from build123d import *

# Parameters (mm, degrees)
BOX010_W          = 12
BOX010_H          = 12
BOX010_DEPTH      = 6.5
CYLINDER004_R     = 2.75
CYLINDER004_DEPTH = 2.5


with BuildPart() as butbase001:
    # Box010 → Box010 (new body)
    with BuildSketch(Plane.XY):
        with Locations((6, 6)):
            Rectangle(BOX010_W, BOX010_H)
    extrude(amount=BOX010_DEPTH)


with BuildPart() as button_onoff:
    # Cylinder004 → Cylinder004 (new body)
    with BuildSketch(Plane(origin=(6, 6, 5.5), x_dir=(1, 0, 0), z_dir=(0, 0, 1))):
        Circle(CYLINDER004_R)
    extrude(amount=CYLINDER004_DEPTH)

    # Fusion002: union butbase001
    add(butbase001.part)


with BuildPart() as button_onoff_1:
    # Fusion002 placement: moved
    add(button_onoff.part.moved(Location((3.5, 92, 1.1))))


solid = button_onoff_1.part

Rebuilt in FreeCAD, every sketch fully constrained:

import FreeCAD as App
import Part
import Sketcher
from FreeCAD import Vector
Q = App.Units.Quantity

doc = App.newDocument("Part")
body = doc.addObject("PartDesign::Body", "Body")

# Sketch on XY plane
sketch1 = body.newObject("Sketcher::SketchObject", "Sketch")
sketch1.AttachmentSupport = (doc.getObject("XY_Plane"), [""])
sketch1.MapMode = "FlatFace"
sketch1.addGeometry([
    Part.LineSegment(Vector(0, 12, 0), Vector(0, 0, 0)),
    Part.LineSegment(Vector(0, 0, 0), Vector(12, 0, 0)),
    Part.LineSegment(Vector(12, 0, 0), Vector(12, 12, 0)),
    Part.LineSegment(Vector(12, 12, 0), Vector(0, 12, 0)),
], False)
sketch1.addConstraint([
    Sketcher.Constraint("Coincident", 0, 2, 1, 1),
    Sketcher.Constraint("Coincident", 1, 2, 2, 1),
    Sketcher.Constraint("Coincident", 2, 2, 3, 1),
    Sketcher.Constraint("Coincident", 3, 2, 0, 1),
    Sketcher.Constraint("Vertical", 0),
    Sketcher.Constraint("Horizontal", 1),
    Sketcher.Constraint("Vertical", 2),
    Sketcher.Constraint("Horizontal", 3),
    Sketcher.Constraint("Coincident", 0, 2, -1, 1),
    Sketcher.Constraint("Equal", 3, 0),
    Sketcher.Constraint("DistanceX", 1, 1, 1, 2, Q("12 mm")),
])
pad1 = body.newObject("PartDesign::Pad", "Pad")
pad1.Profile = sketch1
pad1.Length = 6.5
body2 = doc.addObject("PartDesign::Body", "Body001")

# Sketch on XY plane
sketch2 = body2.newObject("Sketcher::SketchObject", "Sketch001")
sketch2.AttachmentSupport = (doc.getObject("XY_Plane001"), [""])
sketch2.MapMode = "FlatFace"
sketch2.AttachmentOffset = App.Placement(Vector(0, 0, 5.5), App.Rotation())
sketch2.addGeometry(Part.Circle(Vector(6, 6, 0), Vector(0, 0, 1), 2.8), False)
sketch2.addConstraint([
    Sketcher.Constraint("Diameter", 0, Q("5.5 mm")),
    Sketcher.Constraint("DistanceX", -1, 1, 0, 3, Q("6 mm")),
    Sketcher.Constraint("DistanceY", -1, 1, 0, 3, Q("6 mm")),
])
pad2 = body2.newObject("PartDesign::Pad", "Pad001")
pad2.Profile = sketch2
pad2.Length = 2.5
doc.recompute()

boolean = body2.newObject("PartDesign::Boolean", "Boolean")
boolean.Type = "Fuse"
boolean.addObjects([body])
body3 = doc.addObject("PartDesign::Body", "Body002")
doc.recompute()

body2.Placement = App.Placement(Vector(3.5, 92, 1.1), App.Rotation(Vector(0, 0, 1), 0))
boolean2 = body3.newObject("PartDesign::Boolean", "Boolean001")
boolean2.Type = "Fuse"
boolean2.addObjects([body2])

doc.recompute()
